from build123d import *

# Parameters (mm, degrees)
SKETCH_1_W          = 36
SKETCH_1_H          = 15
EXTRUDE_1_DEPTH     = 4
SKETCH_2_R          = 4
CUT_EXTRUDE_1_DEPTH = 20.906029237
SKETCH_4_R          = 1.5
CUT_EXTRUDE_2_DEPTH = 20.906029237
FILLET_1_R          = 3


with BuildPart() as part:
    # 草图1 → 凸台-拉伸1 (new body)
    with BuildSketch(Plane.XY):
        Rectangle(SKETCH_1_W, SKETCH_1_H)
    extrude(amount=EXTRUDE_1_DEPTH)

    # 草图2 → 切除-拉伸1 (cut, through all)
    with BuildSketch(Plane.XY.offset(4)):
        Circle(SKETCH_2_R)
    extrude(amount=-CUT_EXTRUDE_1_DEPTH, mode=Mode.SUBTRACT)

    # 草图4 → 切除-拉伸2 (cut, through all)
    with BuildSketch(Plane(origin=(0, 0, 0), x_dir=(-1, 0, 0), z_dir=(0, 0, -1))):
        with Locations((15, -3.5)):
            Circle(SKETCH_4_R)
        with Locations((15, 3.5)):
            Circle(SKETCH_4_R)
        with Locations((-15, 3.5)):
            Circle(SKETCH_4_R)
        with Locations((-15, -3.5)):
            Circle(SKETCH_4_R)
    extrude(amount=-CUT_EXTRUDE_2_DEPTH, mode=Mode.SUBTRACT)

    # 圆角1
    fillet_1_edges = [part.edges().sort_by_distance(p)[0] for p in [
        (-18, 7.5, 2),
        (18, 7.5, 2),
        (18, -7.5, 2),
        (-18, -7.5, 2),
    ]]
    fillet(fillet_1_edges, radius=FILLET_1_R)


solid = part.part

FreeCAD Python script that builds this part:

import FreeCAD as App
import Part
import Sketcher

V = App.Vector
Q = App.Units.Quantity


def edges_at(feature, points):
    """Names of the edges that pass closest to the given points."""
    edges = feature.Shape.Edges
    near = lambda p: min(range(len(edges)), key=lambda i: edges[i].distToShape(Part.Vertex(*p))[0])
    return sorted({f"Edge{near(p) + 1}" for p in points})


def add_polygon(sketch, points):
    """Adds a closed chain of lines whose ends are joined by coincident constraints."""
    first, n = sketch.GeometryCount, len(points)
    for a, b in zip(points, points[1:] + points[:1]):
        sketch.addGeometry(Part.LineSegment(App.Vector(*a, 0), App.Vector(*b, 0)), False)
    for i in range(n):
        sketch.addConstraint(Sketcher.Constraint("Coincident", first + i, 2, first + (i + 1) % n, 1))

doc = App.newDocument("Part")
params = doc.addObject("Spreadsheet::Sheet", "Params")
for row, (alias, value) in enumerate([
    ("sketch1_width", "36 mm"),
    ("sketch1_height", "15 mm"),
    ("pad1_length", "4 mm"),
    ("sketch2_diameter", "8 mm"),
    ("sketch3_diameter", "3 mm"),
    ("fillet_radius", "3 mm"),
], start=1):
    params.set(f"A{row}", alias)
    params.set(f"B{row}", "=" + value)
    params.setAlias(f"B{row}", alias)

body = doc.addObject("PartDesign::Body", "Body")

# Sketch on XY plane
sketch1 = body.newObject("Sketcher::SketchObject", "Sketch")
sketch1.AttachmentSupport = (doc.getObject("XY_Plane"), [""])
sketch1.MapMode = "FlatFace"
add_polygon(sketch1, [(-18, 8), (-18, -8), (18, -8), (18, 8)])  # lines 0-3
sketch1.addConstraint([
    Sketcher.Constraint("Vertical", 0),
    Sketcher.Constraint("Horizontal", 1),
    Sketcher.Constraint("Vertical", 2),
    Sketcher.Constraint("Horizontal", 3),
    Sketcher.Constraint("Symmetric", 0, 2, 2, 2, -1, 1),
    Sketcher.Constraint("DistanceX", 1, 1, 1, 2, Q("36 mm")),
    Sketcher.Constraint("DistanceY", 0, 2, 0, 1, Q("15 mm")),
])
sketch1.setExpression("Constraints[9]", "Params.sketch1_width")
sketch1.setExpression("Constraints[10]", "Params.sketch1_height")
pad1 = body.newObject("PartDesign::Pad", "Pad")
pad1.Profile = sketch1
pad1.setExpression("Length", "Params.pad1_length")

# Sketch on XY plane
sketch2 = body.newObject("Sketcher::SketchObject", "Sketch001")
sketch2.AttachmentSupport = (doc.getObject("XY_Plane"), [""])
sketch2.MapMode = "FlatFace"
sketch2.AttachmentOffset = App.Placement(V(0, 0, 4), App.Rotation())
sketch2.addGeometry(Part.Circle(V(0, 0, 0), V(0, 0, 1), 4), False)
sketch2.addConstraint([
    Sketcher.Constraint("Coincident", 0, 3, -1, 1),
    Sketcher.Constraint("Diameter", 0, Q("8 mm")),
])
sketch2.setExpression("Constraints[1]", "Params.sketch2_diameter")
pocket1 = body.newObject("PartDesign::Pocket", "Pocket")
pocket1.Profile = sketch2
pocket1.Type = "ThroughAll"

# Sketch on XY plane
sketch3 = body.newObject("Sketcher::SketchObject", "Sketch002")
sketch3.AttachmentSupport = (doc.getObject("XY_Plane"), [""])
sketch3.MapMode = "FlatFace"
sketch3.addGeometry([
    Part.Circle(V(-15, -3.5, 0), V(0, 0, 1), 1.5),
    Part.Circle(V(-15, 3.5, 0), V(0, 0, 1), 1.5),
    Part.Circle(V(15, 3.5, 0), V(0, 0, 1), 1.5),
    Part.Circle(V(15, -3.5, 0), V(0, 0, 1), 1.5),
], False)
sketch3.addConstraint([
    Sketcher.Constraint("Equal", 0, 1),
    Sketcher.Constraint("Equal", 1, 2),
    Sketcher.Constraint("Equal", 2, 3),
    Sketcher.Constraint("Symmetric", 0, 3, 2, 3, -1, 1),
    Sketcher.Constraint("Symmetric", 1, 3, 3, 3, -1, 1),
    Sketcher.Constraint("Symmetric", 1, 3, 2, 3, -2),
    Sketcher.Constraint("Diameter", 0, Q("3 mm")),
    Sketcher.Constraint("DistanceX", 0, 3, -1, 1, Q("15 mm")),
    Sketcher.Constraint("DistanceY", 0, 3, 1, 3, Q("7 mm")),
])
sketch3.setExpression("Constraints[6]", "Params.sketch3_diameter")
pocket2 = body.newObject("PartDesign::Pocket", "Pocket001")
pocket2.Profile = sketch3
pocket2.Type = "ThroughAll"
pocket2.Reversed = True
doc.recompute()

fillet = body.newObject("PartDesign::Fillet", "Fillet")
fillet.Base = (pocket2, edges_at(pocket2, [
    (-18, 7.5, 2),
    (18, 7.5, 2),
    (18, -7.5, 2),
    (-18, -7.5, 2),
]))
fillet.setExpression("Radius", "Params.fillet_radius")

doc.recompute()
